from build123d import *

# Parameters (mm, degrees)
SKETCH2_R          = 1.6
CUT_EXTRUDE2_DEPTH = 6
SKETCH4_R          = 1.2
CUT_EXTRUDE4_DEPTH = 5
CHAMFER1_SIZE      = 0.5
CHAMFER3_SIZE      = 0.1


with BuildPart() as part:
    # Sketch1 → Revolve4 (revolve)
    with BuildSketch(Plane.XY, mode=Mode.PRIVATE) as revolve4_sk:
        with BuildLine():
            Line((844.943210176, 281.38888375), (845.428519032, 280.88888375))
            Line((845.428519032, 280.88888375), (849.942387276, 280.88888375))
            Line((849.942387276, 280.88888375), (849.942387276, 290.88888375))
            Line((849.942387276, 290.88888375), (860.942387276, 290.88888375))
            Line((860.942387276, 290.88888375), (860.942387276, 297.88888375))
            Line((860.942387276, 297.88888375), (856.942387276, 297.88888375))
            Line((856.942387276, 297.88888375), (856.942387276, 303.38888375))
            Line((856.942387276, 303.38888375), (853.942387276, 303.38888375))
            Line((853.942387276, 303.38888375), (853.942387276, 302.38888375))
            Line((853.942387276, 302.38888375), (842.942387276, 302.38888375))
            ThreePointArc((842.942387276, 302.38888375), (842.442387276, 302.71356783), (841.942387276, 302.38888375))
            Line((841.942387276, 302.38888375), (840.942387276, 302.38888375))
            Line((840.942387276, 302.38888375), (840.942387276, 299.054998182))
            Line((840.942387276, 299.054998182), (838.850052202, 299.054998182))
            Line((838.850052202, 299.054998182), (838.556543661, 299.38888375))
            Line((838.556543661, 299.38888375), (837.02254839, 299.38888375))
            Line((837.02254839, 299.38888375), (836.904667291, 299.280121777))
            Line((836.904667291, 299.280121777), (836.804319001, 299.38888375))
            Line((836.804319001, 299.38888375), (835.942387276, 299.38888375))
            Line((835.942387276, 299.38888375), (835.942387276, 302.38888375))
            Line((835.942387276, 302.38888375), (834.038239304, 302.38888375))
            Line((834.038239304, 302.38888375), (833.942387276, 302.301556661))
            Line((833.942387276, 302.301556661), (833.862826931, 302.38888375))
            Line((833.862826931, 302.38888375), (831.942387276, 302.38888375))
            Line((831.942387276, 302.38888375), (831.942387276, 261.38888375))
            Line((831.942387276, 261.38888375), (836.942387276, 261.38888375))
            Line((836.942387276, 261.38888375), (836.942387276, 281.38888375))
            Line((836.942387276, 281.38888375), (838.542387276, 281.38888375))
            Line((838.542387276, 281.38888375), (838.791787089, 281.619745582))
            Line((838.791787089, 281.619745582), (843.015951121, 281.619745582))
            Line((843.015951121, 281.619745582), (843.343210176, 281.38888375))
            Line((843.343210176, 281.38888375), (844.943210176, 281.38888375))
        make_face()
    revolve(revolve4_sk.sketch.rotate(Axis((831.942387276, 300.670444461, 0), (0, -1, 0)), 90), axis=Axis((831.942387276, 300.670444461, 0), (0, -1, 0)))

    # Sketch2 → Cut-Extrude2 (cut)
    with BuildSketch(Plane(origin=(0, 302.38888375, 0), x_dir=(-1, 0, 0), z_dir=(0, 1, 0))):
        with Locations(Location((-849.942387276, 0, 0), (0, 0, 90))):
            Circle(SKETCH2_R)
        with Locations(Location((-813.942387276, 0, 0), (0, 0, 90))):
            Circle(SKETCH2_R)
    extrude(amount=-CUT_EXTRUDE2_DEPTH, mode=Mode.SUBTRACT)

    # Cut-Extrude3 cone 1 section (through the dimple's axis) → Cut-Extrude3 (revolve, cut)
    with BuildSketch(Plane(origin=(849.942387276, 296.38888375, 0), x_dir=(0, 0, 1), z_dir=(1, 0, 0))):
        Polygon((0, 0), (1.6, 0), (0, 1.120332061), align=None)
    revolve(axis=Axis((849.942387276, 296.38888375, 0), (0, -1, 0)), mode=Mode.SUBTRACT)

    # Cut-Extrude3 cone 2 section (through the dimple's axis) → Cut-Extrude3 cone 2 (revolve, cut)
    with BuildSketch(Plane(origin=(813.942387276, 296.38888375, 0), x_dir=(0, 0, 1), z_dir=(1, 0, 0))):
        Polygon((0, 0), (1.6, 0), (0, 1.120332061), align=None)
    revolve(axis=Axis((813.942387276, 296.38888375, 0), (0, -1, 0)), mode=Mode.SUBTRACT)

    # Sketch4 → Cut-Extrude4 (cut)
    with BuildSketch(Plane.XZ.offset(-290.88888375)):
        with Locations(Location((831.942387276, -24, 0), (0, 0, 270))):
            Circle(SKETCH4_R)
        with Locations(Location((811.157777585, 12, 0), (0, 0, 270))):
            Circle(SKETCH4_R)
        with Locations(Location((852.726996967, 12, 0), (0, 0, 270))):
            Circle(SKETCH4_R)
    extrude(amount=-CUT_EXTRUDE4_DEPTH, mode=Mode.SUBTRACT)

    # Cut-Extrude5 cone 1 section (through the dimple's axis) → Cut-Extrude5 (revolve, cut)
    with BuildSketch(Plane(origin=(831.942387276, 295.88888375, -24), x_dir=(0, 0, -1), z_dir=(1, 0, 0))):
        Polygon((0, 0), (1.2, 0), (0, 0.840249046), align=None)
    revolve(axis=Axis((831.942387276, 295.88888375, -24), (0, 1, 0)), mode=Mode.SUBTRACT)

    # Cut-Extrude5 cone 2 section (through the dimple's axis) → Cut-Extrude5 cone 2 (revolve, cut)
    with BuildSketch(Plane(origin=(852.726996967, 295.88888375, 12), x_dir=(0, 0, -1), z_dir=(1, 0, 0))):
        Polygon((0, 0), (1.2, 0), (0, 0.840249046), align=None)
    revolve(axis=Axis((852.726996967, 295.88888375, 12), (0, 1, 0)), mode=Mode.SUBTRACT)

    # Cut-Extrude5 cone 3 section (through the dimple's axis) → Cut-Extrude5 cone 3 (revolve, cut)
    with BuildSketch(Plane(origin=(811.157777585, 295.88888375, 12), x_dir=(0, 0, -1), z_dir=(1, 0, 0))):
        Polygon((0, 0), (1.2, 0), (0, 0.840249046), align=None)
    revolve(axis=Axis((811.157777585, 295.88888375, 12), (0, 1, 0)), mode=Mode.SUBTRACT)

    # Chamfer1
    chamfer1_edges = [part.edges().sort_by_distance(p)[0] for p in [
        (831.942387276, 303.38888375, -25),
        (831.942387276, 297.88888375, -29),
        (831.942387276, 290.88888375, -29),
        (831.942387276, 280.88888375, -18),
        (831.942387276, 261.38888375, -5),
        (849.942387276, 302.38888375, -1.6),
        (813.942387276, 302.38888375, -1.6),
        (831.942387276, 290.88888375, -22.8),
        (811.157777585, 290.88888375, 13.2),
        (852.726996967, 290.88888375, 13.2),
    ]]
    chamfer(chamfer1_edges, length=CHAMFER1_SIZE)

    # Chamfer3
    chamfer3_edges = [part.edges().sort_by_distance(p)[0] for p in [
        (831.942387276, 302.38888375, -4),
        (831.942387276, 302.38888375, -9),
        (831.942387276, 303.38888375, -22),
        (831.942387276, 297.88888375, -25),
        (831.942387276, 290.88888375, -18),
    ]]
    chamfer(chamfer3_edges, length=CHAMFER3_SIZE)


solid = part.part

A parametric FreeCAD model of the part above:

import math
import FreeCAD as App
import Part
import Sketcher
Q = App.Units.Quantity


def edges_at(feature, points):
    """Names of the edges that pass closest to the given points."""
    edges = feature.Shape.Edges
    near = lambda p: min(range(len(edges)), key=lambda i: edges[i].distToShape(Part.Vertex(*p))[0])
    return sorted({f"Edge{near(p) + 1}" for p in points})


def add_polygon(sketch, points):
    """Adds a closed chain of lines whose ends are joined by coincident constraints."""
    first, n = sketch.GeometryCount, len(points)
    for a, b in zip(points, points[1:] + points[:1]):
        sketch.addGeometry(Part.LineSegment(App.Vector(*a, 0), App.Vector(*b, 0)), False)
    for i in range(n):
        sketch.addConstraint(Sketcher.Constraint("Coincident", first + i, 2, first + (i + 1) % n, 1))

doc = App.newDocument("Part")
body = doc.addObject("PartDesign::Body", "Body")

# Sketch on XY plane
sketch1 = doc.addObject("Sketcher::SketchObject", "Sketch")
body.addObject(sketch1)
sketch1.AttachmentSupport = (doc.XY_Plane, [""])
sketch1.MapMode = "FlatFace"
sketch1.addGeometry(Part.LineSegment(App.Vector(844.94, 281.39, 0), App.Vector(845.43, 280.89, 0)), False)
sketch1.addGeometry(Part.LineSegment(App.Vector(845.43, 280.89, 0), App.Vector(849.94, 280.89, 0)), False)
sketch1.addGeometry(Part.LineSegment(App.Vector(849.94, 280.89, 0), App.Vector(849.94, 290.89, 0)), False)
sketch1.addGeometry(Part.LineSegment(App.Vector(849.94, 290.89, 0), App.Vector(860.94, 290.89, 0)), False)
sketch1.addGeometry(Part.LineSegment(App.Vector(860.94, 290.89, 0), App.Vector(860.94, 297.89, 0)), False)
sketch1.addGeometry(Part.LineSegment(App.Vector(860.94, 297.89, 0), App.Vector(856.94, 297.89, 0)), False)
sketch1.addGeometry(Part.LineSegment(App.Vector(856.94, 297.89, 0), App.Vector(856.94, 303.39, 0)), False)
sketch1.addGeometry(Part.LineSegment(App.Vector(856.94, 303.39, 0), App.Vector(853.94, 303.39, 0)), False)
sketch1.addGeometry(Part.LineSegment(App.Vector(853.94, 303.39, 0), App.Vector(853.94, 302.39, 0)), False)
sketch1.addGeometry(Part.LineSegment(App.Vector(853.94, 302.39, 0), App.Vector(842.94, 302.39, 0)), False)
sketch1.addGeometry(Part.ArcOfCircle(Part.Circle(App.Vector(842.44, 302.17, 0), App.Vector(0, 0, 1), 0.55), math.radians(24), math.radians(156)), False)
sketch1.addGeometry(Part.LineSegment(App.Vector(841.94, 302.39, 0), App.Vector(840.94, 302.39, 0)), False)
sketch1.addGeometry(Part.LineSegment(App.Vector(840.94, 302.39, 0), App.Vector(840.94, 299.05, 0)), False)
sketch1.addGeometry(Part.LineSegment(App.Vector(840.94, 299.05, 0), App.Vector(838.85, 299.05, 0)), False)
sketch1.addGeometry(Part.LineSegment(App.Vector(838.85, 299.05, 0), App.Vector(838.56, 299.39, 0)), False)
sketch1.addGeometry(Part.LineSegment(App.Vector(838.56, 299.39, 0), App.Vector(837.02, 299.39, 0)), False)
sketch1.addGeometry(Part.LineSegment(App.Vector(837.02, 299.39, 0), App.Vector(836.9, 299.28, 0)), False)
sketch1.addGeometry(Part.LineSegment(App.Vector(836.9, 299.28, 0), App.Vector(836.8, 299.39, 0)), False)
sketch1.addGeometry(Part.LineSegment(App.Vector(836.8, 299.39, 0), App.Vector(835.94, 299.39, 0)), False)
sketch1.addGeometry(Part.LineSegment(App.Vector(835.94, 299.39, 0), App.Vector(835.94, 302.39, 0)), False)
sketch1.addGeometry(Part.LineSegment(App.Vector(835.94, 302.39, 0), App.Vector(834.04, 302.39, 0)), False)
sketch1.addGeometry(Part.LineSegment(App.Vector(834.04, 302.39, 0), App.Vector(833.94, 302.3, 0)), False)
sketch1.addGeometry(Part.LineSegment(App.Vector(833.94, 302.3, 0), App.Vector(833.86, 302.39, 0)), False)
sketch1.addGeometry(Part.LineSegment(App.Vector(833.86, 302.39, 0), App.Vector(831.94, 302.39, 0)), False)
sketch1.addGeometry(Part.LineSegment(App.Vector(831.94, 302.39, 0), App.Vector(831.94, 261.39, 0)), False)
sketch1.addGeometry(Part.LineSegment(App.Vector(831.94, 261.39, 0), App.Vector(836.94, 261.39, 0)), False)
sketch1.addGeometry(Part.LineSegment(App.Vector(836.94, 261.39, 0), App.Vector(836.94, 281.39, 0)), False)
sketch1.addGeometry(Part.LineSegment(App.Vector(836.94, 281.39, 0), App.Vector(838.54, 281.39, 0)), False)
sketch1.addGeometry(Part.LineSegment(App.Vector(838.54, 281.39, 0), App.Vector(838.79, 281.62, 0)), False)
sketch1.addGeometry(Part.LineSegment(App.Vector(838.79, 281.62, 0), App.Vector(843.02, 281.62, 0)), False)
sketch1.addGeometry(Part.LineSegment(App.Vector(843.02, 281.62, 0), App.Vector(843.34, 281.39, 0)), False)
sketch1.addGeometry(Part.LineSegment(App.Vector(843.34, 281.39, 0), App.Vector(844.94, 281.39, 0)), False)
sketch1.addGeometry(Part.LineSegment(App.Vector(831.94, 303.39, 0), App.Vector(831.94, 261.39, 0)), True)  # axis
sketch1.addConstraint(Sketcher.Constraint("Coincident", 0, 2, 1, 1))
sketch1.addConstraint(Sketcher.Constraint("Coincident", 1, 2, 2, 1))
sketch1.addConstraint(Sketcher.Constraint("Coincident", 2, 2, 3, 1))
sketch1.addConstraint(Sketcher.Constraint("Coincident", 3, 2, 4, 1))
sketch1.addConstraint(Sketcher.Constraint("Coincident", 4, 2, 5, 1))
sketch1.addConstraint(Sketcher.Constraint("Coincident", 5, 2, 6, 1))
sketch1.addConstraint(Sketcher.Constraint("Coincident", 6, 2, 7, 1))
sketch1.addConstraint(Sketcher.Constraint("Coincident", 7, 2, 8, 1))
sketch1.addConstraint(Sketcher.Constraint("Coincident", 8, 2, 9, 1))
sketch1.addConstraint(Sketcher.Constraint("Coincident", 9, 2, 10, 1))
sketch1.addConstraint(Sketcher.Constraint("Coincident", 10, 2, 11, 1))
sketch1.addConstraint(Sketcher.Constraint("Coincident", 11, 2, 12, 1))
sketch1.addConstraint(Sketcher.Constraint("Coincident", 12, 2, 13, 1))
sketch1.addConstraint(Sketcher.Constraint("Coincident", 13, 2, 14, 1))
sketch1.addConstraint(Sketcher.Constraint("Coincident", 14, 2, 15, 1))
sketch1.addConstraint(Sketcher.Constraint("Coincident", 15, 2, 16, 1))
sketch1.addConstraint(Sketcher.Constraint("Coincident", 16, 2, 17, 1))
sketch1.addConstraint(Sketcher.Constraint("Coincident", 17, 2, 18, 1))
sketch1.addConstraint(Sketcher.Constraint("Coincident", 18, 2, 19, 1))
sketch1.addConstraint(Sketcher.Constraint("Coincident", 19, 2, 20, 1))
sketch1.addConstraint(Sketcher.Constraint("Coincident", 20, 2, 21, 1))
sketch1.addConstraint(Sketcher.Constraint("Coincident", 21, 2, 22, 1))
sketch1.addConstraint(Sketcher.Constraint("Coincident", 22, 2, 23, 1))
sketch1.addConstraint(Sketcher.Constraint("Coincident", 23, 2, 24, 1))
sketch1.addConstraint(Sketcher.Constraint("Coincident", 24, 2, 25, 1))
sketch1.addConstraint(Sketcher.Constraint("Coincident", 25, 2, 26, 1))
sketch1.addConstraint(Sketcher.Constraint("Coincident", 26, 2, 27, 1))
sketch1.addConstraint(Sketcher.Constraint("Coincident", 27, 2, 28, 1))
sketch1.addConstraint(Sketcher.Constraint("Coincident", 28, 2, 29, 1))
sketch1.addConstraint(Sketcher.Constraint("Coincident", 29, 2, 30, 1))
sketch1.addConstraint(Sketcher.Constraint("Coincident", 30, 2, 31, 1))
sketch1.addConstraint(Sketcher.Constraint("Coincident", 31, 2, 0, 1))
sketch1.addConstraint(Sketcher.Constraint("Horizontal", 1))
sketch1.addConstraint(Sketcher.Constraint("Vertical", 2))
sketch1.addConstraint(Sketcher.Constraint("Horizontal", 3))
sketch1.addConstraint(Sketcher.Constraint("Vertical", 4))
sketch1.addConstraint(Sketcher.Constraint("Horizontal", 5))
sketch1.addConstraint(Sketcher.Constraint("Vertical", 6))
sketch1.addConstraint(Sketcher.Constraint("Horizontal", 7))
sketch1.addConstraint(Sketcher.Constraint("Vertical", 8))
sketch1.addConstraint(Sketcher.Constraint("Horizontal", 9))
sketch1.addConstraint(Sketcher.Constraint("Horizontal", 11))
sketch1.addConstraint(Sketcher.Constraint("Vertical", 12))
sketch1.addConstraint(Sketcher.Constraint("Horizontal", 13))
sketch1.addConstraint(Sketcher.Constraint("Horizontal", 15))
sketch1.addConstraint(Sketcher.Constraint("Horizontal", 18))
sketch1.addConstraint(Sketcher.Constraint("Vertical", 19))
sketch1.addConstraint(Sketcher.Constraint("Horizontal", 20))
sketch1.addConstraint(Sketcher.Constraint("Horizontal", 23))
sketch1.addConstraint(Sketcher.Constraint("Vertical", 24))
sketch1.addConstraint(Sketcher.Constraint("Horizontal", 25))
sketch1.addConstraint(Sketcher.Constraint("Vertical", 26))
sketch1.addConstraint(Sketcher.Constraint("Horizontal", 27))
sketch1.addConstraint(Sketcher.Constraint("Horizontal", 29))
sketch1.addConstraint(Sketcher.Constraint("Horizontal", 31))
sketch1.addConstraint(Sketcher.Constraint("Vertical", 32))
sketch1.addConstraint(Sketcher.Constraint("Coincident", 32, 2, 24, 2))
sketch1.addConstraint(Sketcher.Constraint("Perpendicular", 16, 17))
sketch1.addConstraint(Sketcher.Constraint("Perpendicular", 21, 22))
sketch1.addConstraint(Sketcher.Constraint("Horizontal", 9, 2, 10, 2))
sketch1.addConstraint(Sketcher.Constraint("Horizontal", 15, 2, 17, 2))
sketch1.addConstraint(Sketcher.Constraint("Horizontal", 11, 2, 19, 2))
sketch1.addConstraint(Sketcher.Constraint("Horizontal", 20, 2, 22, 2))
sketch1.addConstraint(Sketcher.Constraint("Horizontal", 27, 2, 30, 2))
sketch1.addConstraint(Sketcher.Constraint("Horizontal", 7, 2, 32, 1))
sketch1.addConstraint(Sketcher.Constraint("Equal", 3, 9))
sketch1.addConstraint(Sketcher.Constraint("Equal", 27, 31))
sketch1.addConstraint(Sketcher.Constraint("Equal", 11, 8))
sketch1.addConstraint(Sketcher.Constraint("Equal", 7, 19))
sketch1.addConstraint(Sketcher.Constraint("DistanceX", 3, 1, 3, 2, Q("11 mm")))
sketch1.addConstraint(Sketcher.Constraint("DistanceX", 5, 2, 5, 1, Q("4 mm")))
sketch1.addConstraint(Sketcher.Constraint("DistanceX", 7, 2, 7, 1, Q("3 mm")))
sketch1.addConstraint(Sketcher.Constraint("DistanceX", 11, 2, 11, 1, Q("1 mm")))
sketch1.addConstraint(Sketcher.Constraint("DistanceX", 25, 1, 25, 2, Q("5 mm")))
sketch1.addConstraint(Sketcher.Constraint("DistanceY", 2, 1, 2, 2, Q("10 mm")))
sketch1.addConstraint(Sketcher.Constraint("DistanceY", 4, 1, 4, 2, Q("7 mm")))
sketch1.addConstraint(Sketcher.Constraint("DistanceY", 24, 2, 24, 1, Q("41 mm")))
sketch1.addConstraint(Sketcher.Constraint("DistanceY", 26, 1, 26, 2, Q("20 mm")))
sketch1.addConstraint(Sketcher.Constraint("DistanceX", 27, 1, 27, 2, Q("1.6 mm")))
sketch1.addConstraint(Sketcher.Constraint("DistanceY", 6, 1, 6, 2, Q("5.5 mm")))
sketch1.addConstraint(Sketcher.Constraint("DistanceX", 10, 2, 9, 2, Q("1 mm")))
sketch1.addConstraint(Sketcher.Constraint("DistanceX", 21, 2, 19, 2, Q("2 mm")))
sketch1.addConstraint(Sketcher.Constraint("DistanceX", 23, 2, 21, 2, Q("2 mm")))
sketch1.addConstraint(Sketcher.Constraint("DistanceX", 24, 2, 1, 2, Q("18 mm")))
sketch1.addConstraint(Sketcher.Constraint("Radius", 10, Q("0.547332 mm")))
sketch1.addConstraint(Sketcher.Constraint("DistanceY", -1, 1, 12, 2, Q("299.054998 mm")))
sketch1.addConstraint(Sketcher.Constraint("DistanceX", 1, 1, 1, 2, Q("4.513868 mm")))
sketch1.addConstraint(Sketcher.Constraint("DistanceX", 18, 2, 18, 1, Q("0.861932 mm")))
sketch1.addConstraint(Sketcher.Constraint("DistanceX", 23, 2, 23, 1, Q("1.92044 mm")))
sketch1.addConstraint(Sketcher.Constraint("DistanceX", 27, 2, 28, 2, Q("0.2494 mm")))
sketch1.addConstraint(Sketcher.Constraint("Distance", 16, Q("0.160391 mm")))
sketch1.addConstraint(Sketcher.Constraint("Distance", 28, Q("0.339849 mm")))
sketch1.addConstraint(Sketcher.Constraint("DistanceX", 13, 2, 13, 1, Q("2.092335 mm")))
sketch1.addConstraint(Sketcher.Constraint("DistanceX", 15, 2, 15, 1, Q("1.533995 mm")))
sketch1.addConstraint(Sketcher.Constraint("DistanceX", 20, 2, 20, 1, Q("1.904148 mm")))
sketch1.addConstraint(Sketcher.Constraint("DistanceX", 29, 1, 29, 2, Q("4.224164 mm")))
sketch1.addConstraint(Sketcher.Constraint("DistanceY", 12, 2, 12, 1, Q("3.333886 mm")))
sketch1.addConstraint(Sketcher.Constraint("DistanceX", -1, 1, 0, 2, Q("845.428519 mm")))
sketch1.addConstraint(Sketcher.Constraint("DistanceX", -1, 1, 15, 2, Q("837.022548 mm")))
sketch1.addConstraint(Sketcher.Constraint("DistanceX", -1, 1, 30, 2, Q("843.34321 mm")))
revolution = doc.addObject("PartDesign::Revolution", "Revolution")
body.addObject(revolution)
revolution.Profile = sketch1
revolution.ReferenceAxis = (sketch1, ["Axis0"])
revolution.Angle = 360

# Sketch on XZ plane
sketch2 = doc.addObject("Sketcher::SketchObject", "Sketch001")
body.addObject(sketch2)
sketch2.AttachmentSupport = (doc.XZ_Plane, [""])
sketch2.MapMode = "FlatFace"
sketch2.AttachmentOffset = App.Placement(App.Vector(0, 0, -302.388884), App.Rotation())
sketch2.addGeometry(Part.Circle(App.Vector(849.9, 0, 0), App.Vector(0, 0, 1), 1.6), False)
sketch2.addGeometry(Part.Circle(App.Vector(813.9, 0, 0), App.Vector(0, 0, 1), 1.6), False)
sketch2.addConstraint(Sketcher.Constraint("Equal", 0, 1))
sketch2.addConstraint(Sketcher.Constraint("PointOnObject", 0, 3, -1))
sketch2.addConstraint(Sketcher.Constraint("PointOnObject", 1, 3, -1))
sketch2.addConstraint(Sketcher.Constraint("Diameter", 0, Q("3.2 mm")))
sketch2.addConstraint(Sketcher.Constraint("DistanceX", 1, 3, 0, 3, Q("36 mm")))
sketch2.addConstraint(Sketcher.Constraint("DistanceX", -1, 1, 0, 3, Q("849.942387 mm")))
pocket1 = doc.addObject("PartDesign::Pocket", "Pocket")
body.addObject(pocket1)
pocket1.Profile = sketch2
pocket1.Length = 6
pocket1.Reversed = True

# Sketch on YZ plane
sketch3 = doc.addObject("Sketcher::SketchObject", "Sketch002")
body.addObject(sketch3)
sketch3.AttachmentSupport = (doc.YZ_Plane, [""])
sketch3.MapMode = "FlatFace"
sketch3.AttachmentOffset = App.Placement(App.Vector(0, 0, 849.942387), App.Rotation())
add_polygon(sketch3, [(296.4, 0), (296.4, 1.6), (295.3, 0)])  # lines 0-2
sketch3.addConstraint(Sketcher.Constraint("Vertical", 0))
sketch3.addConstraint(Sketcher.Constraint("Horizontal", 2))
sketch3.addConstraint(Sketcher.Constraint("PointOnObject", 1, 2, -1))
sketch3.addConstraint(Sketcher.Constraint("Angle", 1, Q("-125 deg")))
sketch3.addConstraint(Sketcher.Constraint("DistanceY", 0, 1, 0, 2, Q("1.6 mm")))
sketch3.addConstraint(Sketcher.Constraint("DistanceX", -1, 1, 1, 2, Q("295.268552 mm")))
groove = doc.addObject("PartDesign::Groove", "Groove")
body.addObject(groove)
groove.Profile = sketch3
groove.ReferenceAxis = (sketch3, ["H_Axis"])
groove.Angle = 360

# Sketch on YZ plane
sketch4 = doc.addObject("Sketcher::SketchObject", "Sketch003")
body.addObject(sketch4)
sketch4.AttachmentSupport = (doc.YZ_Plane, [""])
sketch4.MapMode = "FlatFace"
sketch4.AttachmentOffset = App.Placement(App.Vector(0, 0, 813.942387), App.Rotation())
add_polygon(sketch4, [(296.4, 0), (296.4, 1.6), (295.3, 0)])  # lines 0-2
sketch4.addConstraint(Sketcher.Constraint("Vertical", 0))
sketch4.addConstraint(Sketcher.Constraint("Horizontal", 2))
sketch4.addConstraint(Sketcher.Constraint("PointOnObject", 1, 2, -1))
sketch4.addConstraint(Sketcher.Constraint("Angle", 1, Q("-125 deg")))
sketch4.addConstraint(Sketcher.Constraint("DistanceY", 0, 1, 0, 2, Q("1.6 mm")))
sketch4.addConstraint(Sketcher.Constraint("DistanceX", -1, 1, 1, 2, Q("295.268552 mm")))
groove2 = doc.addObject("PartDesign::Groove", "Groove001")
body.addObject(groove2)
groove2.Profile = sketch4
groove2.ReferenceAxis = (sketch4, ["H_Axis"])
groove2.Angle = 360

# Sketch on XZ plane
sketch5 = doc.addObject("Sketcher::SketchObject", "Sketch004")
body.addObject(sketch5)
sketch5.AttachmentSupport = (doc.XZ_Plane, [""])
sketch5.MapMode = "FlatFace"
sketch5.AttachmentOffset = App.Placement(App.Vector(0, 0, -290.888884), App.Rotation())
sketch5.addGeometry(Part.Circle(App.Vector(831.9, -24, 0), App.Vector(0, 0, 1), 1.2), False)
sketch5.addGeometry(Part.Circle(App.Vector(811.2, 12, 0), App.Vector(0, 0, 1), 1.2), False)
sketch5.addGeometry(Part.Circle(App.Vector(852.7, 12, 0), App.Vector(0, 0, 1), 1.2), False)
sketch5.addConstraint(Sketcher.Constraint("Equal", 0, 1))
sketch5.addConstraint(Sketcher.Constraint("Equal", 1, 2))
sketch5.addConstraint(Sketcher.Constraint("Horizontal", 1, 3, 2, 3))
sketch5.addConstraint(Sketcher.Constraint("Diameter", 0, Q("2.4 mm")))
sketch5.addConstraint(Sketcher.Constraint("DistanceY", 0, 3, -1, 1, Q("24 mm")))
sketch5.addConstraint(Sketcher.Constraint("DistanceY", -1, 1, 1, 3, Q("12 mm")))
sketch5.addConstraint(Sketcher.Constraint("DistanceX", 1, 3, 0, 3, Q("20.78461 mm")))
sketch5.addConstraint(Sketcher.Constraint("DistanceX", 0, 3, 2, 3, Q("20.78461 mm")))
sketch5.addConstraint(Sketcher.Constraint("DistanceX", -1, 1, 0, 3, Q("831.942387 mm")))
pocket2 = doc.addObject("PartDesign::Pocket", "Pocket001")
body.addObject(pocket2)
pocket2.Profile = sketch5
pocket2.Length = 5

# Sketch on YZ plane
sketch6 = doc.addObject("Sketcher::SketchObject", "Sketch005")
body.addObject(sketch6)
sketch6.AttachmentSupport = (doc.YZ_Plane, [""])
sketch6.MapMode = "FlatFace"
sketch6.AttachmentOffset = App.Placement(App.Vector(0, 0, 831.942387), App.Rotation())
add_polygon(sketch6, [(295.9, -24), (295.9, -25.2), (296.7, -24)])  # lines 0-2
sketch6.addGeometry(Part.LineSegment(App.Vector(295.9, -24, 0), App.Vector(296.7, -24, 0)), True)  # axis
sketch6.addConstraint(Sketcher.Constraint("Vertical", 0))
sketch6.addConstraint(Sketcher.Constraint("Horizontal", 2))
sketch6.addConstraint(Sketcher.Constraint("Horizontal", 3))
sketch6.addConstraint(Sketcher.Constraint("Coincident", 3, 1, 2, 2))
sketch6.addConstraint(Sketcher.Constraint("Equal", 2, 3))
sketch6.addConstraint(Sketcher.Constraint("Angle", 1, Q("55 deg")))
sketch6.addConstraint(Sketcher.Constraint("DistanceY", 0, 2, 0, 1, Q("1.2 mm")))
sketch6.addConstraint(Sketcher.Constraint("DistanceY", 1, 2, -1, 1, Q("24 mm")))
sketch6.addConstraint(Sketcher.Constraint("DistanceX", -1, 1, 0, 2, Q("295.888884 mm")))
groove3 = doc.addObject("PartDesign::Groove", "Groove002")
body.addObject(groove3)
groove3.Profile = sketch6
groove3.ReferenceAxis = (sketch6, ["Axis0"])
groove3.Angle = 360

# Sketch on YZ plane
sketch7 = doc.addObject("Sketcher::SketchObject", "Sketch006")
body.addObject(sketch7)
sketch7.AttachmentSupport = (doc.YZ_Plane, [""])
sketch7.MapMode = "FlatFace"
sketch7.AttachmentOffset = App.Placement(App.Vector(0, 0, 852.726997), App.Rotation())
add_polygon(sketch7, [(295.9, 12), (295.9, 10.8), (296.7, 12)])  # lines 0-2
sketch7.addGeometry(Part.LineSegment(App.Vector(295.9, 12, 0), App.Vector(296.7, 12, 0)), True)  # axis
sketch7.addConstraint(Sketcher.Constraint("Vertical", 0))
sketch7.addConstraint(Sketcher.Constraint("Horizontal", 2))
sketch7.addConstraint(Sketcher.Constraint("Horizontal", 3))
sketch7.addConstraint(Sketcher.Constraint("Coincident", 3, 1, 2, 2))
sketch7.addConstraint(Sketcher.Constraint("Equal", 2, 3))
sketch7.addConstraint(Sketcher.Constraint("Angle", 1, Q("55 deg")))
sketch7.addConstraint(Sketcher.Constraint("DistanceY", 0, 2, 0, 1, Q("1.2 mm")))
sketch7.addConstraint(Sketcher.Constraint("DistanceY", -1, 1, 1, 2, Q("12 mm")))
sketch7.addConstraint(Sketcher.Constraint("DistanceX", -1, 1, 0, 2, Q("295.888884 mm")))
groove4 = doc.addObject("PartDesign::Groove", "Groove003")
body.addObject(groove4)
groove4.Profile = sketch7
groove4.ReferenceAxis = (sketch7, ["Axis0"])
groove4.Angle = 360

# Sketch on YZ plane
sketch8 = doc.addObject("Sketcher::SketchObject", "Sketch007")
body.addObject(sketch8)
sketch8.AttachmentSupport = (doc.YZ_Plane, [""])
sketch8.MapMode = "FlatFace"
sketch8.AttachmentOffset = App.Placement(App.Vector(0, 0, 811.157778), App.Rotation())
add_polygon(sketch8, [(295.9, 12), (295.9, 10.8), (296.7, 12)])  # lines 0-2
sketch8.addGeometry(Part.LineSegment(App.Vector(295.9, 12, 0), App.Vector(296.7, 12, 0)), True)  # axis
sketch8.addConstraint(Sketcher.Constraint("Vertical", 0))
sketch8.addConstraint(Sketcher.Constraint("Horizontal", 2))
sketch8.addConstraint(Sketcher.Constraint("Horizontal", 3))
sketch8.addConstraint(Sketcher.Constraint("Coincident", 3, 1, 2, 2))
sketch8.addConstraint(Sketcher.Constraint("Equal", 2, 3))
sketch8.addConstraint(Sketcher.Constraint("Angle", 1, Q("55 deg")))
sketch8.addConstraint(Sketcher.Constraint("DistanceY", 0, 2, 0, 1, Q("1.2 mm")))
sketch8.addConstraint(Sketcher.Constraint("DistanceY", -1, 1, 1, 2, Q("12 mm")))
sketch8.addConstraint(Sketcher.Constraint("DistanceX", -1, 1, 0, 2, Q("295.888884 mm")))
groove5 = doc.addObject("PartDesign::Groove", "Groove004")
body.addObject(groove5)
groove5.Profile = sketch8
groove5.ReferenceAxis = (sketch8, ["Axis0"])
groove5.Angle = 360
doc.recompute()

chamfer = doc.addObject("PartDesign::Chamfer", "Chamfer")
body.addObject(chamfer)
chamfer.Base = (groove5, edges_at(groove5, [
    (831.942, 303.389, -25),
    (831.942, 297.889, -29),
    (831.942, 290.889, -29),
    (831.942, 280.889, -18),
    (831.942, 261.389, -5),
    (849.942, 302.389, -1.6),
    (813.942, 302.389, -1.6),
    (831.942, 290.889, -22.8),
    (811.158, 290.889, 13.2),
    (852.727, 290.889, 13.2),
]))
chamfer.Size = 0.5
doc.recompute()

chamfer2 = doc.addObject("PartDesign::Chamfer", "Chamfer001")
body.addObject(chamfer2)
chamfer2.Base = (chamfer, edges_at(chamfer, [
    (831.942, 302.389, -4),
    (831.942, 302.389, -9),
    (831.942, 303.389, -22),
    (831.942, 297.889, -25),
    (831.942, 290.889, -18),
]))
chamfer2.Size = 0.1

doc.recompute()
